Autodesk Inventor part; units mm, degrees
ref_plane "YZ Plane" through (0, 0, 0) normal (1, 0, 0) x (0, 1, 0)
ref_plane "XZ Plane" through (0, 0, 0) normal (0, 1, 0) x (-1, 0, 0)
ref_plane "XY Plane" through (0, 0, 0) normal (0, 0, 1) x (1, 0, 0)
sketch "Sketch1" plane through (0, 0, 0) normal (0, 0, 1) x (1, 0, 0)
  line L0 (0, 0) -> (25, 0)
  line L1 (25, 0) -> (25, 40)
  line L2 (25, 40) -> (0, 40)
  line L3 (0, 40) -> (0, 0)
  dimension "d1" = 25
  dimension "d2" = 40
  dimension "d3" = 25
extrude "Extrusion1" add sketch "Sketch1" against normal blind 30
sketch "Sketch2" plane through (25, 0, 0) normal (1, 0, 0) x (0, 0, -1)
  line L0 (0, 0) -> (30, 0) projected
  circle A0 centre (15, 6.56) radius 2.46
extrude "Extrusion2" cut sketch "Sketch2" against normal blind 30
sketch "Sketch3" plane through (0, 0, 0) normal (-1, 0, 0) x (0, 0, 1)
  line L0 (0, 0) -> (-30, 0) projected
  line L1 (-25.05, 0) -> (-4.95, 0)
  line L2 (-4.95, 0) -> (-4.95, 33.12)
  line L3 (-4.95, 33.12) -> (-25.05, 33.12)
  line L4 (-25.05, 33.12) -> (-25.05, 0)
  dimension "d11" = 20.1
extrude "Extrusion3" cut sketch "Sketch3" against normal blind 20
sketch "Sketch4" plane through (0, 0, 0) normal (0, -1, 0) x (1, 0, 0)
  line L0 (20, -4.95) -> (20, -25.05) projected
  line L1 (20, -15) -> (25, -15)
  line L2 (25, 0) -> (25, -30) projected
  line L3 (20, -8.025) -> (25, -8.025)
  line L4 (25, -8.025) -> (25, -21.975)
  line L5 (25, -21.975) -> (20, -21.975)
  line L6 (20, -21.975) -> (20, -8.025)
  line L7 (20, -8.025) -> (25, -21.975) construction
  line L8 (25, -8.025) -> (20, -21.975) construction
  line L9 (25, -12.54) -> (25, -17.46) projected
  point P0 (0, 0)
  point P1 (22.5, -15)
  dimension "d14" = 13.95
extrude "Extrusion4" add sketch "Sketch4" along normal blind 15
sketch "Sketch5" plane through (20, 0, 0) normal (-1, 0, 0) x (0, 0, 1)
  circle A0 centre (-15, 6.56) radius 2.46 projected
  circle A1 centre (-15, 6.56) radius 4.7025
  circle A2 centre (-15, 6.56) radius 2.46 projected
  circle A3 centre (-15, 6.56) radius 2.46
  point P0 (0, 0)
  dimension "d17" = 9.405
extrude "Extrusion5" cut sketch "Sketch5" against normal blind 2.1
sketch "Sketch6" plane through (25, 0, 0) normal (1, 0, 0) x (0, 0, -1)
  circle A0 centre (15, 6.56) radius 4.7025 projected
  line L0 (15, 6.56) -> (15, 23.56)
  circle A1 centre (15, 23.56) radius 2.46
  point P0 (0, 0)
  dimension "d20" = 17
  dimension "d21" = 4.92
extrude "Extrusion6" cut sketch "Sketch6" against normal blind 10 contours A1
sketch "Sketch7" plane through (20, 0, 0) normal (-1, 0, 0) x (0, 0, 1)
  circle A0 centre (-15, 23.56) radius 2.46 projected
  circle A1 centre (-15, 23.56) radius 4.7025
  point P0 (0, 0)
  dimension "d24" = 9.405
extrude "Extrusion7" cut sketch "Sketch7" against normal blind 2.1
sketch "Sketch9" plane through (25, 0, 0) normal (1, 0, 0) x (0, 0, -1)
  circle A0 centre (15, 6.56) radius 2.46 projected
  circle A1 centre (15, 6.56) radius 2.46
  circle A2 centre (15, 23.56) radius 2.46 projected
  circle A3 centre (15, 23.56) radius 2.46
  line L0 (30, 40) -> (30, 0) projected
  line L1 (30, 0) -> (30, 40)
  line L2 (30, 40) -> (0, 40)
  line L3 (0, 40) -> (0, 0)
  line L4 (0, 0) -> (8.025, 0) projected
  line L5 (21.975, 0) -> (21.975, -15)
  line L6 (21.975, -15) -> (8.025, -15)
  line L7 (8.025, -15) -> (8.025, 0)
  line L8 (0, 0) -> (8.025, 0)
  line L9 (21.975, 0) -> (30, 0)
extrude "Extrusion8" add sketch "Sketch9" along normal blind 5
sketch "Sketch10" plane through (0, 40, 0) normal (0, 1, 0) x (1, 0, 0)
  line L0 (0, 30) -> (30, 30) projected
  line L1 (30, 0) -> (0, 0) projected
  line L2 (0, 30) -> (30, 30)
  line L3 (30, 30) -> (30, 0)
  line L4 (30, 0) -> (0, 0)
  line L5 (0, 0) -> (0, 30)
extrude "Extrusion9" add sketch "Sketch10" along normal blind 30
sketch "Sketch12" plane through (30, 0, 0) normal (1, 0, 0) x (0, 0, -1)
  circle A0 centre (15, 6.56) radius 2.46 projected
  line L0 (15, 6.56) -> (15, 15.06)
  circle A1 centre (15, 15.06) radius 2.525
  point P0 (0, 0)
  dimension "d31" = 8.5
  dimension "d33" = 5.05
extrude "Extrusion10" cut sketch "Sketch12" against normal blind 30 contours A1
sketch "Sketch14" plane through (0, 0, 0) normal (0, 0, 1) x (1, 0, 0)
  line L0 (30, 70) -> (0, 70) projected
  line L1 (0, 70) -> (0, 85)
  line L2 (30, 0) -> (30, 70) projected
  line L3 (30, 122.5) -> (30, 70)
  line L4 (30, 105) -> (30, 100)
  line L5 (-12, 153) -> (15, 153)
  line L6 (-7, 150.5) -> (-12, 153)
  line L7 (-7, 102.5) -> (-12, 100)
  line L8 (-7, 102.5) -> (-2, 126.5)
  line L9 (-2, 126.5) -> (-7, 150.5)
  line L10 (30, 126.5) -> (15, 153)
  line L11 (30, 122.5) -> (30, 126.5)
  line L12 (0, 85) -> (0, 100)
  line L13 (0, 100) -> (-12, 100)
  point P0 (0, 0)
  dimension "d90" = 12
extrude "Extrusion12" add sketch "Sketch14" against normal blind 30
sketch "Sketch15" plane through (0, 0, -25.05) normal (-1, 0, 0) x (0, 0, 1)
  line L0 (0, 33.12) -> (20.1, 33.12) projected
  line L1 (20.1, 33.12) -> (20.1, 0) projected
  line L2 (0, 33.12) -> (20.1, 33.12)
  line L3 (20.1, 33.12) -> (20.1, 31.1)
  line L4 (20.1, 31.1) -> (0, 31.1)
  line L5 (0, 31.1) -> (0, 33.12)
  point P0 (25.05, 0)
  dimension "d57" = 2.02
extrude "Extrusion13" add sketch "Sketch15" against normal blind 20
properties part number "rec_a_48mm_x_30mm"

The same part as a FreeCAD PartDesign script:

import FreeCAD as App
import Part
import Sketcher
Q = App.Units.Quantity

doc = App.newDocument("Part")
params = doc.addObject("Spreadsheet::Sheet", "Params")
for row, (alias, value) in enumerate([
    ("sketch1_width", "25 mm"),
    ("sketch1_height", "40 mm"),
    ("pad1_length", "30 mm"),
    ("sketch2_diameter", "4.92 mm"),
    ("pocket1_length", "30 mm"),
    ("sketch3_height", "20.1 mm"),
    ("sketch3_width", "33.12 mm"),
    ("pocket2_length", "20 mm"),
    ("sketch4_height", "13.95 mm"),
    ("sketch4_width", "5 mm"),
    ("pad2_length", "15 mm"),
    ("sketch5_diameter", "4.92 mm"),
    ("pocket3_length", "2.1 mm"),
    ("sketch6_diameter", "4.92 mm"),
    ("pocket4_length", "10 mm"),
    ("sketch7_diameter", "4.92 mm"),
    ("pocket5_length", "2.1 mm"),
    ("sketch8_diameter", "4.92 mm"),
    ("sketch8_width", "40 mm"),
    ("sketch8_width2", "15 mm"),
    ("sketch8_height", "30 mm"),
    ("sketch8_height2", "13.95 mm"),
    ("pad3_length", "5 mm"),
    ("sketch9_width", "30 mm"),
    ("pad4_length", "30 mm"),
    ("sketch10_diameter", "5.05 mm"),
    ("pocket6_length", "30 mm"),
    ("sketch11_width", "12 mm"),
    ("sketch11_width2", "30 mm"),
    ("sketch11_width3", "27 mm"),
    ("sketch11_height", "56.5 mm"),
    ("pad5_length", "30 mm"),
    ("sketch12_width", "2.02 mm"),
    ("sketch12_height", "20.1 mm"),
    ("pad6_length", "20 mm"),
], start=1):
    params.set(f"A{row}", alias)
    params.set(f"B{row}", "=" + value)
    params.setAlias(f"B{row}", alias)

body = doc.addObject("PartDesign::Body", "Body")

sketch1 = body.newObject("Sketcher::SketchObject", "Sketch")
sketch1.AttachmentSupport = (doc.getObject("XY_Plane"), [""])
sketch1.MapMode = "FlatFace"
sketch1.addGeometry(Part.LineSegment(App.Vector(0, 40, 0), App.Vector(0, 0, 0)), False)
sketch1.addGeometry(Part.LineSegment(App.Vector(0, 0, 0), App.Vector(25, 0, 0)), False)
sketch1.addGeometry(Part.LineSegment(App.Vector(25, 0, 0), App.Vector(25, 40, 0)), False)
sketch1.addGeometry(Part.LineSegment(App.Vector(25, 40, 0), App.Vector(0, 40, 0)), False)
sketch1.addConstraint(Sketcher.Constraint("Coincident", 0, 2, 1, 1))
sketch1.addConstraint(Sketcher.Constraint("Coincident", 1, 2, 2, 1))
sketch1.addConstraint(Sketcher.Constraint("Coincident", 2, 2, 3, 1))
sketch1.addConstraint(Sketcher.Constraint("Coincident", 3, 2, 0, 1))
sketch1.addConstraint(Sketcher.Constraint("Vertical", 0))
sketch1.addConstraint(Sketcher.Constraint("Horizontal", 1))
sketch1.addConstraint(Sketcher.Constraint("Vertical", 2))
sketch1.addConstraint(Sketcher.Constraint("Horizontal", 3))
sketch1.addConstraint(Sketcher.Constraint("Coincident", 0, 2, -1, 1))
sketch1.addConstraint(Sketcher.Constraint("DistanceX", 1, 1, 1, 2, Q("25 mm")))
sketch1.addConstraint(Sketcher.Constraint("DistanceY", 0, 2, 0, 1, Q("40 mm")))
sketch1.setExpression("Constraints[9]", "Params.sketch1_width")
sketch1.setExpression("Constraints[10]", "Params.sketch1_height")
pad1 = body.newObject("PartDesign::Pad", "Pad")
pad1.Profile = sketch1
pad1.setExpression("Length", "Params.pad1_length")
pad1.Reversed = True

sketch2 = body.newObject("Sketcher::SketchObject", "Sketch001")
sketch2.AttachmentSupport = (doc.getObject("YZ_Plane"), [""])
sketch2.MapMode = "FlatFace"
sketch2.AttachmentOffset = App.Placement(App.Vector(0, 0, 25), App.Rotation())
sketch2.addGeometry(Part.Circle(App.Vector(6.56, -15, 0), App.Vector(0, 0, 1), 2.46), False)
sketch2.addConstraint(Sketcher.Constraint("Diameter", 0, Q("4.92 mm")))
sketch2.addConstraint(Sketcher.Constraint("DistanceY", 0, 3, -1, 1, Q("15 mm")))
sketch2.addConstraint(Sketcher.Constraint("DistanceX", -1, 1, 0, 3, Q("6.56 mm")))
sketch2.setExpression("Constraints[0]", "Params.sketch2_diameter")
pocket1 = body.newObject("PartDesign::Pocket", "Pocket")
pocket1.Profile = sketch2
pocket1.setExpression("Length", "Params.pocket1_length")

sketch3 = body.newObject("Sketcher::SketchObject", "Sketch002")
sketch3.AttachmentSupport = (doc.getObject("YZ_Plane"), [""])
sketch3.MapMode = "FlatFace"
sketch3.addGeometry(Part.LineSegment(App.Vector(0, -25.05, 0), App.Vector(0, -4.95, 0)), False)
sketch3.addGeometry(Part.LineSegment(App.Vector(0, -4.95, 0), App.Vector(33.12, -4.95, 0)), False)
sketch3.addGeometry(Part.LineSegment(App.Vector(33.12, -4.95, 0), App.Vector(33.12, -25.05, 0)), False)
sketch3.addGeometry(Part.LineSegment(App.Vector(33.12, -25.05, 0), App.Vector(0, -25.05, 0)), False)
sketch3.addConstraint(Sketcher.Constraint("Coincident", 0, 2, 1, 1))
sketch3.addConstraint(Sketcher.Constraint("Coincident", 1, 2, 2, 1))
sketch3.addConstraint(Sketcher.Constraint("Coincident", 2, 2, 3, 1))
sketch3.addConstraint(Sketcher.Constraint("Coincident", 3, 2, 0, 1))
sketch3.addConstraint(Sketcher.Constraint("Vertical", 0))
sketch3.addConstraint(Sketcher.Constraint("Horizontal", 1))
sketch3.addConstraint(Sketcher.Constraint("Vertical", 2))
sketch3.addConstraint(Sketcher.Constraint("Horizontal", 3))
sketch3.addConstraint(Sketcher.Constraint("PointOnObject", 0, 2, -2))
sketch3.addConstraint(Sketcher.Constraint("DistanceY", 0, 1, 0, 2, Q("20.1 mm")))
sketch3.addConstraint(Sketcher.Constraint("DistanceX", 1, 1, 1, 2, Q("33.12 mm")))
sketch3.addConstraint(Sketcher.Constraint("DistanceY", 0, 2, -1, 1, Q("4.95 mm")))
sketch3.setExpression("Constraints[9]", "Params.sketch3_height")
sketch3.setExpression("Constraints[10]", "Params.sketch3_width")
pocket2 = body.newObject("PartDesign::Pocket", "Pocket001")
pocket2.Profile = sketch3
pocket2.setExpression("Length", "Params.pocket2_length")
pocket2.Reversed = True

sketch4 = body.newObject("Sketcher::SketchObject", "Sketch003")
sketch4.AttachmentSupport = (doc.getObject("XZ_Plane"), [""])
sketch4.MapMode = "FlatFace"
sketch4.addGeometry(Part.LineSegment(App.Vector(25, -8.025, 0), App.Vector(20, -8.025, 0)), False)
sketch4.addGeometry(Part.LineSegment(App.Vector(20, -8.025, 0), App.Vector(20, -21.975, 0)), False)
sketch4.addGeometry(Part.LineSegment(App.Vector(20, -21.975, 0), App.Vector(25, -21.975, 0)), False)
sketch4.addGeometry(Part.LineSegment(App.Vector(25, -21.975, 0), App.Vector(25, -8.025, 0)), False)
sketch4.addConstraint(Sketcher.Constraint("Coincident", 0, 2, 1, 1))
sketch4.addConstraint(Sketcher.Constraint("Coincident", 1, 2, 2, 1))
sketch4.addConstraint(Sketcher.Constraint("Coincident", 2, 2, 3, 1))
sketch4.addConstraint(Sketcher.Constraint("Coincident", 3, 2, 0, 1))
sketch4.addConstraint(Sketcher.Constraint("Horizontal", 0))
sketch4.addConstraint(Sketcher.Constraint("Vertical", 1))
sketch4.addConstraint(Sketcher.Constraint("Horizontal", 2))
sketch4.addConstraint(Sketcher.Constraint("Vertical", 3))
sketch4.addConstraint(Sketcher.Constraint("DistanceY", 1, 2, 1, 1, Q("13.95 mm")))
sketch4.addConstraint(Sketcher.Constraint("DistanceX", 0, 2, 0, 1, Q("5 mm")))
sketch4.addConstraint(Sketcher.Constraint("DistanceX", -1, 1, 0, 2, Q("20 mm")))
sketch4.addConstraint(Sketcher.Constraint("DistanceY", 0, 2, -1, 1, Q("8.025 mm")))
sketch4.setExpression("Constraints[8]", "Params.sketch4_height")
sketch4.setExpression("Constraints[9]", "Params.sketch4_width")
pad2 = body.newObject("PartDesign::Pad", "Pad001")
pad2.Profile = sketch4
pad2.setExpression("Length", "Params.pad2_length")

sketch5 = body.newObject("Sketcher::SketchObject", "Sketch004")
sketch5.AttachmentSupport = (doc.getObject("YZ_Plane"), [""])
sketch5.MapMode = "FlatFace"
sketch5.AttachmentOffset = App.Placement(App.Vector(0, 0, 20), App.Rotation())
sketch5.addGeometry(Part.Circle(App.Vector(6.56, -15, 0), App.Vector(0, 0, 1), 4.7025), False)
sketch5.addGeometry(Part.Circle(App.Vector(6.56, -15, 0), App.Vector(0, 0, 1), 2.46), False)
sketch5.addConstraint(Sketcher.Constraint("Coincident", 1, 3, 0, 3))
sketch5.addConstraint(Sketcher.Constraint("Diameter", 0, Q("9.405 mm")))
sketch5.addConstraint(Sketcher.Constraint("Diameter", 1, Q("4.92 mm")))
sketch5.addConstraint(Sketcher.Constraint("DistanceY", 0, 3, -1, 1, Q("15 mm")))
sketch5.addConstraint(Sketcher.Constraint("DistanceX", -1, 1, 0, 3, Q("6.56 mm")))
sketch5.setExpression("Constraints[2]", "Params.sketch5_diameter")
pocket3 = body.newObject("PartDesign::Pocket", "Pocket002")
pocket3.Profile = sketch5
pocket3.setExpression("Length", "Params.pocket3_length")
pocket3.Reversed = True

sketch6 = body.newObject("Sketcher::SketchObject", "Sketch005")
sketch6.AttachmentSupport = (doc.getObject("YZ_Plane"), [""])
sketch6.MapMode = "FlatFace"
sketch6.AttachmentOffset = App.Placement(App.Vector(0, 0, 25), App.Rotation())
sketch6.addGeometry(Part.Circle(App.Vector(23.56, -15, 0), App.Vector(0, 0, 1), 2.46), False)
sketch6.addConstraint(Sketcher.Constraint("Diameter", 0, Q("4.92 mm")))
sketch6.addConstraint(Sketcher.Constraint("DistanceY", 0, 3, -1, 1, Q("15 mm")))
sketch6.addConstraint(Sketcher.Constraint("DistanceX", -1, 1, 0, 3, Q("23.56 mm")))
sketch6.setExpression("Constraints[0]", "Params.sketch6_diameter")
pocket4 = body.newObject("PartDesign::Pocket", "Pocket003")
pocket4.Profile = sketch6
pocket4.setExpression("Length", "Params.pocket4_length")

sketch7 = body.newObject("Sketcher::SketchObject", "Sketch006")
sketch7.AttachmentSupport = (doc.getObject("YZ_Plane"), [""])
sketch7.MapMode = "FlatFace"
sketch7.AttachmentOffset = App.Placement(App.Vector(0, 0, 20), App.Rotation())
sketch7.addGeometry(Part.Circle(App.Vector(23.56, -15, 0), App.Vector(0, 0, 1), 4.7025), False)
sketch7.addGeometry(Part.Circle(App.Vector(23.56, -15, 0), App.Vector(0, 0, 1), 2.46), False)
sketch7.addConstraint(Sketcher.Constraint("Coincident", 1, 3, 0, 3))
sketch7.addConstraint(Sketcher.Constraint("Diameter", 0, Q("9.405 mm")))
sketch7.addConstraint(Sketcher.Constraint("Diameter", 1, Q("4.92 mm")))
sketch7.addConstraint(Sketcher.Constraint("DistanceY", 0, 3, -1, 1, Q("15 mm")))
sketch7.addConstraint(Sketcher.Constraint("DistanceX", -1, 1, 0, 3, Q("23.56 mm")))
sketch7.setExpression("Constraints[2]", "Params.sketch7_diameter")
pocket5 = body.newObject("PartDesign::Pocket", "Pocket004")
pocket5.Profile = sketch7
pocket5.setExpression("Length", "Params.pocket5_length")
pocket5.Reversed = True

sketch8 = body.newObject("Sketcher::SketchObject", "Sketch007")
sketch8.AttachmentSupport = (doc.getObject("YZ_Plane"), [""])
sketch8.MapMode = "FlatFace"
sketch8.AttachmentOffset = App.Placement(App.Vector(0, 0, 25), App.Rotation())
sketch8.addGeometry(Part.LineSegment(App.Vector(0, -30, 0), App.Vector(40, -30, 0)), False)
sketch8.addGeometry(Part.LineSegment(App.Vector(40, -30, 0), App.Vector(40, 0, 0)), False)
sketch8.addGeometry(Part.LineSegment(App.Vector(40, 0, 0), App.Vector(0, 0, 0)), False)
sketch8.addGeometry(Part.LineSegment(App.Vector(0, 0, 0), App.Vector(0, -8.025, 0)), False)
sketch8.addGeometry(Part.LineSegment(App.Vector(0, -8.025, 0), App.Vector(-15, -8.025, 0)), False)
sketch8.addGeometry(Part.LineSegment(App.Vector(-15, -8.025, 0), App.Vector(-15, -21.975, 0)), False)
sketch8.addGeometry(Part.LineSegment(App.Vector(-15, -21.975, 0), App.Vector(0, -21.975, 0)), False)
sketch8.addGeometry(Part.LineSegment(App.Vector(0, -21.975, 0), App.Vector(0, -30, 0)), False)
sketch8.addGeometry(Part.Circle(App.Vector(6.56, -15, 0), App.Vector(0, 0, 1), 2.46), False)
sketch8.addGeometry(Part.Circle(App.Vector(23.56, -15, 0), App.Vector(0, 0, 1), 2.46), False)
sketch8.addConstraint(Sketcher.Constraint("Coincident", 0, 2, 1, 1))
sketch8.addConstraint(Sketcher.Constraint("Coincident", 1, 2, 2, 1))
sketch8.addConstraint(Sketcher.Constraint("Coincident", 2, 2, 3, 1))
sketch8.addConstraint(Sketcher.Constraint("Coincident", 3, 2, 4, 1))
sketch8.addConstraint(Sketcher.Constraint("Coincident", 4, 2, 5, 1))
sketch8.addConstraint(Sketcher.Constraint("Coincident", 5, 2, 6, 1))
sketch8.addConstraint(Sketcher.Constraint("Coincident", 6, 2, 7, 1))
sketch8.addConstraint(Sketcher.Constraint("Coincident", 7, 2, 0, 1))
sketch8.addConstraint(Sketcher.Constraint("Horizontal", 0))
sketch8.addConstraint(Sketcher.Constraint("Vertical", 1))
sketch8.addConstraint(Sketcher.Constraint("Horizontal", 2))
sketch8.addConstraint(Sketcher.Constraint("Vertical", 3))
sketch8.addConstraint(Sketcher.Constraint("Horizontal", 4))
sketch8.addConstraint(Sketcher.Constraint("Vertical", 5))
sketch8.addConstraint(Sketcher.Constraint("Horizontal", 6))
sketch8.addConstraint(Sketcher.Constraint("Vertical", 7))
sketch8.addConstraint(Sketcher.Constraint("Coincident", 2, 2, -1, 1))
sketch8.addConstraint(Sketcher.Constraint("Equal", 8, 9))
sketch8.addConstraint(Sketcher.Constraint("PointOnObject", 6, 2, -2))
sketch8.addConstraint(Sketcher.Constraint("Horizontal", 8, 3, 9, 3))
sketch8.addConstraint(Sketcher.Constraint("Equal", 3, 7))
sketch8.addConstraint(Sketcher.Constraint("Diameter", 8, Q("4.92 mm")))
sketch8.addConstraint(Sketcher.Constraint("DistanceX", 0, 1, 0, 2, Q("40 mm")))
sketch8.addConstraint(Sketcher.Constraint("DistanceX", 4, 2, 4, 1, Q("15 mm")))
sketch8.addConstraint(Sketcher.Constraint("DistanceY", 1, 1, 1, 2, Q("30 mm")))
sketch8.addConstraint(Sketcher.Constraint("DistanceY", 8, 3, -1, 1, Q("15 mm")))
sketch8.addConstraint(Sketcher.Constraint("DistanceX", 8, 3, 9, 3, Q("17 mm")))
sketch8.addConstraint(Sketcher.Constraint("DistanceY", 5, 2, 5, 1, Q("13.95 mm")))
sketch8.addConstraint(Sketcher.Constraint("DistanceX", -1, 1, 8, 3, Q("6.56 mm")))
sketch8.setExpression("Constraints[21]", "Params.sketch8_diameter")
sketch8.setExpression("Constraints[22]", "Params.sketch8_width")
sketch8.setExpression("Constraints[23]", "Params.sketch8_width2")
sketch8.setExpression("Constraints[24]", "Params.sketch8_height")
sketch8.setExpression("Constraints[27]", "Params.sketch8_height2")
pad3 = body.newObject("PartDesign::Pad", "Pad002")
pad3.Profile = sketch8
pad3.setExpression("Length", "Params.pad3_length")

sketch9 = body.newObject("Sketcher::SketchObject", "Sketch008")
sketch9.AttachmentSupport = (doc.getObject("XZ_Plane"), [""])
sketch9.MapMode = "FlatFace"
sketch9.AttachmentOffset = App.Placement(App.Vector(0, 0, -40), App.Rotation())
sketch9.addGeometry(Part.LineSegment(App.Vector(30, -30, 0), App.Vector(0, -30, 0)), False)
sketch9.addGeometry(Part.LineSegment(App.Vector(0, -30, 0), App.Vector(0, 0, 0)), False)
sketch9.addGeometry(Part.LineSegment(App.Vector(0, 0, 0), App.Vector(30, 0, 0)), False)
sketch9.addGeometry(Part.LineSegment(App.Vector(30, 0, 0), App.Vector(30, -30, 0)), False)
sketch9.addConstraint(Sketcher.Constraint("Coincident", 0, 2, 1, 1))
sketch9.addConstraint(Sketcher.Constraint("Coincident", 1, 2, 2, 1))
sketch9.addConstraint(Sketcher.Constraint("Coincident", 2, 2, 3, 1))
sketch9.addConstraint(Sketcher.Constraint("Coincident", 3, 2, 0, 1))
sketch9.addConstraint(Sketcher.Constraint("Horizontal", 0))
sketch9.addConstraint(Sketcher.Constraint("Vertical", 1))
sketch9.addConstraint(Sketcher.Constraint("Horizontal", 2))
sketch9.addConstraint(Sketcher.Constraint("Vertical", 3))
sketch9.addConstraint(Sketcher.Constraint("Coincident", 1, 2, -1, 1))
sketch9.addConstraint(Sketcher.Constraint("Equal", 2, 1))
sketch9.addConstraint(Sketcher.Constraint("DistanceX", 0, 2, 0, 1, Q("30 mm")))
sketch9.setExpression("Constraints[10]", "Params.sketch9_width")
pad4 = body.newObject("PartDesign::Pad", "Pad003")
pad4.Profile = sketch9
pad4.setExpression("Length", "Params.pad4_length")
pad4.Reversed = True

sketch10 = body.newObject("Sketcher::SketchObject", "Sketch009")
sketch10.AttachmentSupport = (doc.getObject("YZ_Plane"), [""])
sketch10.MapMode = "FlatFace"
sketch10.AttachmentOffset = App.Placement(App.Vector(0, 0, 30), App.Rotation())
sketch10.addGeometry(Part.Circle(App.Vector(15.06, -15, 0), App.Vector(0, 0, 1), 2.525), False)
sketch10.addConstraint(Sketcher.Constraint("Diameter", 0, Q("5.05 mm")))
sketch10.addConstraint(Sketcher.Constraint("DistanceY", 0, 3, -1, 1, Q("15 mm")))
sketch10.addConstraint(Sketcher.Constraint("DistanceX", -1, 1, 0, 3, Q("15.06 mm")))
sketch10.setExpression("Constraints[0]", "Params.sketch10_diameter")
pocket6 = body.newObject("PartDesign::Pocket", "Pocket005")
pocket6.Profile = sketch10
pocket6.setExpression("Length", "Params.pocket6_length")

sketch11 = body.newObject("Sketcher::SketchObject", "Sketch010")
sketch11.AttachmentSupport = (doc.getObject("XY_Plane"), [""])
sketch11.MapMode = "FlatFace"
sketch11.addGeometry(Part.LineSegment(App.Vector(0, 70, 0), App.Vector(30, 70, 0)), False)
sketch11.addGeometry(Part.LineSegment(App.Vector(30, 70, 0), App.Vector(30, 126.5, 0)), False)
sketch11.addGeometry(Part.LineSegment(App.Vector(30, 126.5, 0), App.Vector(15, 153, 0)), False)
sketch11.addGeometry(Part.LineSegment(App.Vector(15, 153, 0), App.Vector(-12, 153, 0)), False)
sketch11.addGeometry(Part.LineSegment(App.Vector(-12, 153, 0), App.Vector(-7, 150.5, 0)), False)
sketch11.addGeometry(Part.LineSegment(App.Vector(-7, 150.5, 0), App.Vector(-2, 126.5, 0)), False)
sketch11.addGeometry(Part.LineSegment(App.Vector(-2, 126.5, 0), App.Vector(-7, 102.5, 0)), False)
sketch11.addGeometry(Part.LineSegment(App.Vector(-7, 102.5, 0), App.Vector(-12, 100, 0)), False)
sketch11.addGeometry(Part.LineSegment(App.Vector(-12, 100, 0), App.Vector(0, 100, 0)), False)
sketch11.addGeometry(Part.LineSegment(App.Vector(0, 100, 0), App.Vector(0, 70, 0)), False)
sketch11.addConstraint(Sketcher.Constraint("Coincident", 0, 2, 1, 1))
sketch11.addConstraint(Sketcher.Constraint("Coincident", 1, 2, 2, 1))
sketch11.addConstraint(Sketcher.Constraint("Coincident", 2, 2, 3, 1))
sketch11.addConstraint(Sketcher.Constraint("Coincident", 3, 2, 4, 1))
sketch11.addConstraint(Sketcher.Constraint("Coincident", 4, 2, 5, 1))
sketch11.addConstraint(Sketcher.Constraint("Coincident", 5, 2, 6, 1))
sketch11.addConstraint(Sketcher.Constraint("Coincident", 6, 2, 7, 1))
sketch11.addConstraint(Sketcher.Constraint("Coincident", 7, 2, 8, 1))
sketch11.addConstraint(Sketcher.Constraint("Coincident", 8, 2, 9, 1))
sketch11.addConstraint(Sketcher.Constraint("Coincident", 9, 2, 0, 1))
sketch11.addConstraint(Sketcher.Constraint("Horizontal", 0))
sketch11.addConstraint(Sketcher.Constraint("Vertical", 1))
sketch11.addConstraint(Sketcher.Constraint("Horizontal", 3))
sketch11.addConstraint(Sketcher.Constraint("Horizontal", 8))
sketch11.addConstraint(Sketcher.Constraint("Vertical", 9))
sketch11.addConstraint(Sketcher.Constraint("PointOnObject", 8, 2, -2))
sketch11.addConstraint(Sketcher.Constraint("Horizontal", 1, 2, 5, 2))
sketch11.addConstraint(Sketcher.Constraint("Vertical", 4, 2, 6, 2))
sketch11.addConstraint(Sketcher.Constraint("Vertical", 3, 2, 7, 2))
sketch11.addConstraint(Sketcher.Constraint("Equal", 0, 9))
sketch11.addConstraint(Sketcher.Constraint("Equal", 5, 6))
sketch11.addConstraint(Sketcher.Constraint("Equal", 4, 7))
sketch11.addConstraint(Sketcher.Constraint("DistanceX", 8, 1, 8, 2, Q("12 mm")))
sketch11.addConstraint(Sketcher.Constraint("DistanceX", 0, 1, 0, 2, Q("30 mm")))
sketch11.addConstraint(Sketcher.Constraint("DistanceX", 3, 2, 3, 1, Q("27 mm")))
sketch11.addConstraint(Sketcher.Constraint("DistanceY", 1, 1, 1, 2, Q("56.5 mm")))
sketch11.addConstraint(Sketcher.Constraint("DistanceY", -1, 1, 0, 2, Q("70 mm")))
sketch11.addConstraint(Sketcher.Constraint("DistanceX", 4, 2, -1, 1, Q("7 mm")))
sketch11.addConstraint(Sketcher.Constraint("DistanceX", 5, 2, -1, 1, Q("2 mm")))
sketch11.addConstraint(Sketcher.Constraint("DistanceY", 1, 2, 4, 2, Q("24 mm")))
sketch11.setExpression("Constraints[22]", "Params.sketch11_width")
sketch11.setExpression("Constraints[23]", "Params.sketch11_width2")
sketch11.setExpression("Constraints[24]", "Params.sketch11_width3")
sketch11.setExpression("Constraints[25]", "Params.sketch11_height")
pad5 = body.newObject("PartDesign::Pad", "Pad004")
pad5.Profile = sketch11
pad5.setExpression("Length", "Params.pad5_length")
pad5.Reversed = True

sketch12 = body.newObject("Sketcher::SketchObject", "Sketch011")
sketch12.AttachmentSupport = (doc.getObject("YZ_Plane"), [""])
sketch12.MapMode = "FlatFace"
sketch12.addGeometry(Part.LineSegment(App.Vector(33.12, -4.95, 0), App.Vector(33.12, -25.05, 0)), False)
sketch12.addGeometry(Part.LineSegment(App.Vector(33.12, -25.05, 0), App.Vector(31.1, -25.05, 0)), False)
sketch12.addGeometry(Part.LineSegment(App.Vector(31.1, -25.05, 0), App.Vector(31.1, -4.95, 0)), False)
sketch12.addGeometry(Part.LineSegment(App.Vector(31.1, -4.95, 0), App.Vector(33.12, -4.95, 0)), False)
sketch12.addConstraint(Sketcher.Constraint("Coincident", 0, 2, 1, 1))
sketch12.addConstraint(Sketcher.Constraint("Coincident", 1, 2, 2, 1))
sketch12.addConstraint(Sketcher.Constraint("Coincident", 2, 2, 3, 1))
sketch12.addConstraint(Sketcher.Constraint("Coincident", 3, 2, 0, 1))
sketch12.addConstraint(Sketcher.Constraint("Vertical", 0))
sketch12.addConstraint(Sketcher.Constraint("Horizontal", 1))
sketch12.addConstraint(Sketcher.Constraint("Vertical", 2))
sketch12.addConstraint(Sketcher.Constraint("Horizontal", 3))
sketch12.addConstraint(Sketcher.Constraint("DistanceX", 1, 2, 1, 1, Q("2.02 mm")))
sketch12.addConstraint(Sketcher.Constraint("DistanceY", 0, 2, 0, 1, Q("20.1 mm")))
sketch12.addConstraint(Sketcher.Constraint("DistanceX", -1, 1, 1, 2, Q("31.1 mm")))
sketch12.addConstraint(Sketcher.Constraint("DistanceY", 0, 2, -1, 1, Q("25.05 mm")))
sketch12.setExpression("Constraints[8]", "Params.sketch12_width")
sketch12.setExpression("Constraints[9]", "Params.sketch12_height")
pad6 = body.newObject("PartDesign::Pad", "Pad005")
pad6.Profile = sketch12
pad6.setExpression("Length", "Params.pad6_length")

doc.recompute()
